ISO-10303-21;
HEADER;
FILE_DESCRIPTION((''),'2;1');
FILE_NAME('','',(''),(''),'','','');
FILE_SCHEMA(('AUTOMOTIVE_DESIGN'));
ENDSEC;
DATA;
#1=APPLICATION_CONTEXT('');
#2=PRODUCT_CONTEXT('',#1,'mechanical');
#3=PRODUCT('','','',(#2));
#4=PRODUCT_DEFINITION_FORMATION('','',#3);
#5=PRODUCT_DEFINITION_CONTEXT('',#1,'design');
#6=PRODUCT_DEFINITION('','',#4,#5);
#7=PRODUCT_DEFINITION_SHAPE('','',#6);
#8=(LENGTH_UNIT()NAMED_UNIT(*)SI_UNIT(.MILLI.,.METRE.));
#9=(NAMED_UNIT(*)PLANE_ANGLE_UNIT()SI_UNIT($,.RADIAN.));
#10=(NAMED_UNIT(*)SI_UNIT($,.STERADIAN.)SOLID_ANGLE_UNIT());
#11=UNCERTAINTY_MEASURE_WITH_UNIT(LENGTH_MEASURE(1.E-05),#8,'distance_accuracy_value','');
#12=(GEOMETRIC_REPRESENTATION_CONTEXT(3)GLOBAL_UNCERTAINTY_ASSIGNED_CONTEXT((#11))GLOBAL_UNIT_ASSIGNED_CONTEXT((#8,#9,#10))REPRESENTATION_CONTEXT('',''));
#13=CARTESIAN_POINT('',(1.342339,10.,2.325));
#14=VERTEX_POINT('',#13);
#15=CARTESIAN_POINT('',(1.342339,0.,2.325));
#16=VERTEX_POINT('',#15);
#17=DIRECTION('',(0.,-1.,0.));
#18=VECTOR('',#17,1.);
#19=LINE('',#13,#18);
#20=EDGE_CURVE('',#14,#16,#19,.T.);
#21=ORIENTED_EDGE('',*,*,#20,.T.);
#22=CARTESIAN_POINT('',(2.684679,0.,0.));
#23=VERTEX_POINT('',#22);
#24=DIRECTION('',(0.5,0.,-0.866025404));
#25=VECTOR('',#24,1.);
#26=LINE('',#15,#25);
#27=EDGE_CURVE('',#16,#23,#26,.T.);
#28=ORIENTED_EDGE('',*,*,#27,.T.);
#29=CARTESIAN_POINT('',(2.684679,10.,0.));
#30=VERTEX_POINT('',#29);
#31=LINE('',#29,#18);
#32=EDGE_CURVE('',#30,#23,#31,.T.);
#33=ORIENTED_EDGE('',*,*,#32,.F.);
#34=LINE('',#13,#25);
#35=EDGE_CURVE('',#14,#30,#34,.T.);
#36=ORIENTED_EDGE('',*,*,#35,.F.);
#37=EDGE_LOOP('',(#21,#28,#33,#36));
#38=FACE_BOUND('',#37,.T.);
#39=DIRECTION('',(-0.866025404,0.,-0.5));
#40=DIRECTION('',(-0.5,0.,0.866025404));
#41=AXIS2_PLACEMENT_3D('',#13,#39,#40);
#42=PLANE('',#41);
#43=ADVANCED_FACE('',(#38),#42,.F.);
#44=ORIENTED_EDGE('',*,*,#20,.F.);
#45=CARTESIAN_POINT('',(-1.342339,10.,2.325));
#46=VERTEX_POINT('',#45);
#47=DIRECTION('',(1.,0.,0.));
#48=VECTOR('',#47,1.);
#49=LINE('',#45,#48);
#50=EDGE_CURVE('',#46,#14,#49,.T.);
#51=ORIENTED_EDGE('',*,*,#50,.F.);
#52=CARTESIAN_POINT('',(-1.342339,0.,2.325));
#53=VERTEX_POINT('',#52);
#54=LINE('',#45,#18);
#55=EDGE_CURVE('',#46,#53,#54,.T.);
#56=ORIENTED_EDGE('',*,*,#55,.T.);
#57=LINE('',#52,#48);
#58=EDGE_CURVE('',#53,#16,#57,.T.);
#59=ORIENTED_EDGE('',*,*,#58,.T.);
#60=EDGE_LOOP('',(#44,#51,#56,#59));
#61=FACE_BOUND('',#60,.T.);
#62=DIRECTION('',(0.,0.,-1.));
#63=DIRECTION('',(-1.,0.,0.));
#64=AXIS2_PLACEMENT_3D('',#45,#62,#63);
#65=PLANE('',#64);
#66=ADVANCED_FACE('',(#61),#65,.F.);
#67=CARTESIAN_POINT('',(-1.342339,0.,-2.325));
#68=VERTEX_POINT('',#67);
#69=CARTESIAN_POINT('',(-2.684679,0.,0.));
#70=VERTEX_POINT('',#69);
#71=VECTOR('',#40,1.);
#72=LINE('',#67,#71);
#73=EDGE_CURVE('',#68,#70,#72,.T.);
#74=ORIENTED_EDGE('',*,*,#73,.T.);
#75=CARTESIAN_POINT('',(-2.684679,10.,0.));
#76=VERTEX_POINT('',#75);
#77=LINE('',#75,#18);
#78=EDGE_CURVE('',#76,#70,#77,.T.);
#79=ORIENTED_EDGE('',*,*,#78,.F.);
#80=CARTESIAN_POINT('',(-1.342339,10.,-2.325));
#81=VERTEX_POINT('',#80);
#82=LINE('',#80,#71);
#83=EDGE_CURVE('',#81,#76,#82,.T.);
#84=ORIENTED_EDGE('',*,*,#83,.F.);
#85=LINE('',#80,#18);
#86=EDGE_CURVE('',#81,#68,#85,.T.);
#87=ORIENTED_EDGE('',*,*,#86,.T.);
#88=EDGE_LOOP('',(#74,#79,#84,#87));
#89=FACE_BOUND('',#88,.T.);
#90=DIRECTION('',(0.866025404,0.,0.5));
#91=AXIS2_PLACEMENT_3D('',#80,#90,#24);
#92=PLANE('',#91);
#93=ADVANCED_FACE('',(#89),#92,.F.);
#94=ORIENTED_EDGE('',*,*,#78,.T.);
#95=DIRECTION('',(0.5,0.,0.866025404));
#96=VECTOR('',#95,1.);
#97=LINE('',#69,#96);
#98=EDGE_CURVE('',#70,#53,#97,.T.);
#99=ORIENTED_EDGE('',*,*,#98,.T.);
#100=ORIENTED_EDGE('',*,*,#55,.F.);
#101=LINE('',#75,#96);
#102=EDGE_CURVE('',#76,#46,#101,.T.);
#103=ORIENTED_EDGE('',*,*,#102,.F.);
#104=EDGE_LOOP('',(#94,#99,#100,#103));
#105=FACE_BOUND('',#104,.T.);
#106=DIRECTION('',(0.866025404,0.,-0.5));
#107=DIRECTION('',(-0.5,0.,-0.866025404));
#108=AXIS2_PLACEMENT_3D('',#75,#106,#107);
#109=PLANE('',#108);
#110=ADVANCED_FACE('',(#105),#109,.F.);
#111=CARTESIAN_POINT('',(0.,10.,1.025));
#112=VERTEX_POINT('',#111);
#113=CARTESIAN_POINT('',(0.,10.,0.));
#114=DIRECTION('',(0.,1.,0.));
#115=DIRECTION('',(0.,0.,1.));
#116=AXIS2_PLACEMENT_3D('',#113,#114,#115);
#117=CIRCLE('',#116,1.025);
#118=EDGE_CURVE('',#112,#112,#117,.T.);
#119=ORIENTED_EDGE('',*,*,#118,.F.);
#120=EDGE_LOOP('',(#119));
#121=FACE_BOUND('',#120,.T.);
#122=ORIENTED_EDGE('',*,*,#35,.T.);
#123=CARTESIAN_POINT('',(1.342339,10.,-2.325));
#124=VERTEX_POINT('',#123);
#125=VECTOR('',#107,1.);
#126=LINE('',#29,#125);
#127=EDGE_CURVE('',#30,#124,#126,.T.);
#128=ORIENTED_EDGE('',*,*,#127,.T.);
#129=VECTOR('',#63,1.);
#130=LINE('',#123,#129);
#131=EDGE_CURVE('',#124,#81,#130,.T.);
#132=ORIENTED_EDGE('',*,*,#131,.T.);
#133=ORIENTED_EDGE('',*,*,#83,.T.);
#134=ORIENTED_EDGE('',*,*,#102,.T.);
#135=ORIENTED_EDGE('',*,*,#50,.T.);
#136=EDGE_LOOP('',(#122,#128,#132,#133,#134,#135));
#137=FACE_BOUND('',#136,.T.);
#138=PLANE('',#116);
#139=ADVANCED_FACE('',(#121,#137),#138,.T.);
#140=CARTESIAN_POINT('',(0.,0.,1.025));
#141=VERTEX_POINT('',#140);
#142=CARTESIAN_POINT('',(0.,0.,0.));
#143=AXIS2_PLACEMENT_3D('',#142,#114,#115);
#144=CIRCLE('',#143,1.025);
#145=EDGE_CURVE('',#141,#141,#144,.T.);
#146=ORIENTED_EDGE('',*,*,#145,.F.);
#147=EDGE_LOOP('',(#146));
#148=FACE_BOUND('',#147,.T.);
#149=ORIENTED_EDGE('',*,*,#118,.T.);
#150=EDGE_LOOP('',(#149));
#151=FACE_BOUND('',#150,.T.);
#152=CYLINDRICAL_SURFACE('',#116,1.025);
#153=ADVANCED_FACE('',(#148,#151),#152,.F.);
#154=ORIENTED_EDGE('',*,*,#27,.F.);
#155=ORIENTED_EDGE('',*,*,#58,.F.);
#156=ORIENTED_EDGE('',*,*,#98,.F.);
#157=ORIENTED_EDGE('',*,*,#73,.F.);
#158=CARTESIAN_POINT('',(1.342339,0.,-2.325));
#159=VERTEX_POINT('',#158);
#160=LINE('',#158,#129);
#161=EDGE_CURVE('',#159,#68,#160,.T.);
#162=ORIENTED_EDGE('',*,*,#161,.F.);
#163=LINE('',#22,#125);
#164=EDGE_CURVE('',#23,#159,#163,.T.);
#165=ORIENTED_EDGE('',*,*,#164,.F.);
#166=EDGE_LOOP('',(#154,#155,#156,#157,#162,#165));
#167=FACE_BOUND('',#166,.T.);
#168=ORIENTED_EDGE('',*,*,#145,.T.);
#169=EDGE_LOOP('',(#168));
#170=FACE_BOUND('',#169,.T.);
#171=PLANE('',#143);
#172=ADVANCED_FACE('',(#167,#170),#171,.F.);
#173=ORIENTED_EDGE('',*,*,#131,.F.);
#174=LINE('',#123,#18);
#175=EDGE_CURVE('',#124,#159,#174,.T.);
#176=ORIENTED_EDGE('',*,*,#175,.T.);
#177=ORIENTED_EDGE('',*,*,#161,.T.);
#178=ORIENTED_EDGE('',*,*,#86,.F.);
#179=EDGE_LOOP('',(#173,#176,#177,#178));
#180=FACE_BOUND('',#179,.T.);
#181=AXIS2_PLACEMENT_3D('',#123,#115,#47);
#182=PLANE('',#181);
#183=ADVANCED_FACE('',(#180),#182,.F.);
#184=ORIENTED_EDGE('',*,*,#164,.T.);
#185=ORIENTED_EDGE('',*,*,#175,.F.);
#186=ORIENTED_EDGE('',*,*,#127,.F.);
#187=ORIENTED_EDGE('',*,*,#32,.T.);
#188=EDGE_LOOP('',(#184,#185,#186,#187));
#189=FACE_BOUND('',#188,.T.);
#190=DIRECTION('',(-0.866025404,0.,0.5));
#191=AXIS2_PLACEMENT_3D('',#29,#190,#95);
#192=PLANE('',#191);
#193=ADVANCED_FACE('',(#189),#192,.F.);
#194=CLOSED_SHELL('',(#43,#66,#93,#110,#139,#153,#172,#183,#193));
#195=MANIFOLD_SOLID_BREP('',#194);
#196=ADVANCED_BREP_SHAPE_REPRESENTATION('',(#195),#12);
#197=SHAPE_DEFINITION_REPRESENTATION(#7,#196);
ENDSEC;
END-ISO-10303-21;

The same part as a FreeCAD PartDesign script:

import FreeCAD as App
import Part
import Sketcher
Q = App.Units.Quantity

doc = App.newDocument("Part")
body = doc.addObject("PartDesign::Body", "Body")

sketch1 = doc.addObject("Sketcher::SketchObject", "Sketch")
body.addObject(sketch1)
sketch1.AttachmentSupport = (doc.XZ_Plane, [""])
sketch1.MapMode = "FlatFace"
sketch1.addGeometry(Part.LineSegment(App.Vector(2.7, 0, 0), App.Vector(1.3, -2.3, 0)), False)
sketch1.addGeometry(Part.LineSegment(App.Vector(1.3, -2.3, 0), App.Vector(-1.3, -2.3, 0)), False)
sketch1.addGeometry(Part.LineSegment(App.Vector(-1.3, -2.3, 0), App.Vector(-2.7, 0, 0)), False)
sketch1.addGeometry(Part.LineSegment(App.Vector(-2.7, 0, 0), App.Vector(-1.3, 2.3, 0)), False)
sketch1.addGeometry(Part.LineSegment(App.Vector(-1.3, 2.3, 0), App.Vector(1.3, 2.3, 0)), False)
sketch1.addGeometry(Part.LineSegment(App.Vector(1.3, 2.3, 0), App.Vector(2.7, 0, 0)), False)
sketch1.addConstraint(Sketcher.Constraint("Coincident", 0, 2, 1, 1))
sketch1.addConstraint(Sketcher.Constraint("Coincident", 1, 2, 2, 1))
sketch1.addConstraint(Sketcher.Constraint("Coincident", 2, 2, 3, 1))
sketch1.addConstraint(Sketcher.Constraint("Coincident", 3, 2, 4, 1))
sketch1.addConstraint(Sketcher.Constraint("Coincident", 4, 2, 5, 1))
sketch1.addConstraint(Sketcher.Constraint("Coincident", 5, 2, 0, 1))
sketch1.addConstraint(Sketcher.Constraint("Horizontal", 1))
sketch1.addConstraint(Sketcher.Constraint("Horizontal", 4))
sketch1.addConstraint(Sketcher.Constraint("Symmetric", 0, 2, 3, 2, -1, 1))
sketch1.addConstraint(Sketcher.Constraint("Symmetric", 2, 2, 5, 2, -1, 1))
sketch1.addConstraint(Sketcher.Constraint("PointOnObject", 2, 2, -1))
sketch1.addConstraint(Sketcher.Constraint("Parallel", 2, 5))
sketch1.addConstraint(Sketcher.Constraint("Vertical", 1, 2, 3, 2))
sketch1.addConstraint(Sketcher.Constraint("Angle", 0, Q("-120 deg")))
sketch1.addConstraint(Sketcher.Constraint("DistanceY", 1, 2, 3, 2, 4.65))
sketch1.addConstraint(Sketcher.Constraint("DistanceX", 1, 2, 1, 1, 2.684679))
pad1 = doc.addObject("PartDesign::Pad", "Pad")
body.addObject(pad1)
pad1.Profile = sketch1
pad1.Length = 10
pad1.Reversed = True

sketch2 = doc.addObject("Sketcher::SketchObject", "Sketch001")
body.addObject(sketch2)
sketch2.AttachmentSupport = (doc.XZ_Plane, [""])
sketch2.MapMode = "FlatFace"
sketch2.AttachmentOffset = App.Placement(App.Vector(0, 0, -10), App.Rotation())
sketch2.addGeometry(Part.Circle(App.Vector(0, 0, 0), App.Vector(0, 0, 1), 1), False)
sketch2.addConstraint(Sketcher.Constraint("Coincident", 0, 3, -1, 1))
sketch2.addConstraint(Sketcher.Constraint("Diameter", 0, 2.05))
doc.recompute()
hole = doc.addObject("PartDesign::Hole", "Hole")
body.addObject(hole)
hole.Profile = sketch2
hole.ThreadType = "None"
hole.Diameter = 2.05
hole.DepthType = "Dimension"
hole.Depth = 25
hole.DrillPoint = "Angled"
hole.DrillPointAngle = 118
hole.Reversed = True

doc.recompute()
